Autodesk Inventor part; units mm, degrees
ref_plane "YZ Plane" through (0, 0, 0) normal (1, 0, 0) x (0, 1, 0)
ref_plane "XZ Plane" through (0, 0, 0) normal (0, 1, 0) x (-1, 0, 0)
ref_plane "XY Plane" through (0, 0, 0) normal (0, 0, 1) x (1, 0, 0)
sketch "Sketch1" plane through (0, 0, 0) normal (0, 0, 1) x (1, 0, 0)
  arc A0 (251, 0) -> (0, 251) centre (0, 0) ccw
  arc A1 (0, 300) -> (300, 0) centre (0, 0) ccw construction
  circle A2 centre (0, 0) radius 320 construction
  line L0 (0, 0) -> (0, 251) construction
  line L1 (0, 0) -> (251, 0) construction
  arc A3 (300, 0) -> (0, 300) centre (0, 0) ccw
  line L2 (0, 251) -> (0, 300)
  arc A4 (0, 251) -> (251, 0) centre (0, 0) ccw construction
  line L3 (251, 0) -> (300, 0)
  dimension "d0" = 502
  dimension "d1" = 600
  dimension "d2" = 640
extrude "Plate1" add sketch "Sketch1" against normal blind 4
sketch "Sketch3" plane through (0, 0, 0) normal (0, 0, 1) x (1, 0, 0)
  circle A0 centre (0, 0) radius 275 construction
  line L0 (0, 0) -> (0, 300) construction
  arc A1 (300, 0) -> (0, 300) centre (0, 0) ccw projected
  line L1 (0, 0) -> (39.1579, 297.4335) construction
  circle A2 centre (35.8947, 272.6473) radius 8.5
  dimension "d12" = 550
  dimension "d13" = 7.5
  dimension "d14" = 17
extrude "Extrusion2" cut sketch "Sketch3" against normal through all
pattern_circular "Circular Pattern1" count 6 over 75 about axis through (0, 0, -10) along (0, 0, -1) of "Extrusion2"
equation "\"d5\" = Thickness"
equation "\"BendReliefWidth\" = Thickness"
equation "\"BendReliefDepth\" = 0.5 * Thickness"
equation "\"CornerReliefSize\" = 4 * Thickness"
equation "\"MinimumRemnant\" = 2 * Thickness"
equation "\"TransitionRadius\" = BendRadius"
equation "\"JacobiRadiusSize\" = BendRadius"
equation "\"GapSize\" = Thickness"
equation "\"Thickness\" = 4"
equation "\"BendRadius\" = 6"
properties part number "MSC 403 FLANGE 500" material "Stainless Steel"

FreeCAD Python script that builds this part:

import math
import FreeCAD as App
import Part
import Sketcher
from FreeCAD import Vector
Q = App.Units.Quantity

doc = App.newDocument("Part")
body = doc.addObject("PartDesign::Body", "Body")

# Sketch on XY plane
sketch1 = doc.addObject("Sketcher::SketchObject", "Sketch")
body.addObject(sketch1)
sketch1.AttachmentSupport = (doc.XY_Plane, [""])
sketch1.MapMode = "FlatFace"
sketch1.addGeometry(Part.ArcOfCircle(Part.Circle(Vector(0, 0, 0), Vector(0, 0, 1), 251), math.radians(0), math.radians(90)), False)
sketch1.addGeometry(Part.LineSegment(Vector(251, 0, 0), Vector(300, 0, 0)), False)
sketch1.addGeometry(Part.ArcOfCircle(Part.Circle(Vector(0, 0, 0), Vector(0, 0, 1), 300), math.radians(0), math.radians(90)), False)
sketch1.addGeometry(Part.LineSegment(Vector(0, 300, 0), Vector(0, 251, 0)), False)
sketch1.addConstraint(Sketcher.Constraint("Coincident", 0, 1, 1, 1))
sketch1.addConstraint(Sketcher.Constraint("Coincident", 1, 2, 2, 1))
sketch1.addConstraint(Sketcher.Constraint("Coincident", 2, 2, 3, 1))
sketch1.addConstraint(Sketcher.Constraint("Coincident", 3, 2, 0, 2))
sketch1.addConstraint(Sketcher.Constraint("Horizontal", 1))
sketch1.addConstraint(Sketcher.Constraint("Vertical", 3))
sketch1.addConstraint(Sketcher.Constraint("Coincident", 0, 3, -1, 1))
sketch1.addConstraint(Sketcher.Constraint("Coincident", 2, 3, -1, 1))
sketch1.addConstraint(Sketcher.Constraint("PointOnObject", 0, 1, -1))
sketch1.addConstraint(Sketcher.Constraint("PointOnObject", 2, 2, -2))
sketch1.addConstraint(Sketcher.Constraint("Radius", 0, Q("251 mm")))
sketch1.addConstraint(Sketcher.Constraint("Radius", 2, Q("300 mm")))
pad1 = doc.addObject("PartDesign::Pad", "Pad")
body.addObject(pad1)
pad1.Profile = sketch1
pad1.Length = 4
pad1.Reversed = True

# Sketch on XY plane
sketch2 = doc.addObject("Sketcher::SketchObject", "Sketch001")
body.addObject(sketch2)
sketch2.AttachmentSupport = (doc.XY_Plane, [""])
sketch2.MapMode = "FlatFace"
sketch2.addGeometry(Part.Circle(Vector(36, 273, 0), Vector(0, 0, 1), 8), False)
sketch2.addConstraint(Sketcher.Constraint("Diameter", 0, Q("17 mm")))
sketch2.addConstraint(Sketcher.Constraint("DistanceX", -1, 1, 0, 3, Q("35.8947 mm")))
sketch2.addConstraint(Sketcher.Constraint("DistanceY", -1, 1, 0, 3, Q("272.6473 mm")))
pocket1 = doc.addObject("PartDesign::Pocket", "Pocket")
body.addObject(pocket1)
pocket1.Profile = sketch2
pocket1.Type = "ThroughAll"
doc.recompute()

polarpattern = doc.addObject("PartDesign::PolarPattern", "PolarPattern")
body.addObject(polarpattern)
polarpattern.Originals = [pocket1]
polarpattern.Axis = (doc.Z_Axis, [""])
polarpattern.Angle = 75
polarpattern.Occurrences = 6
polarpattern.Reversed = True
body.Tip = polarpattern

doc.recompute()
